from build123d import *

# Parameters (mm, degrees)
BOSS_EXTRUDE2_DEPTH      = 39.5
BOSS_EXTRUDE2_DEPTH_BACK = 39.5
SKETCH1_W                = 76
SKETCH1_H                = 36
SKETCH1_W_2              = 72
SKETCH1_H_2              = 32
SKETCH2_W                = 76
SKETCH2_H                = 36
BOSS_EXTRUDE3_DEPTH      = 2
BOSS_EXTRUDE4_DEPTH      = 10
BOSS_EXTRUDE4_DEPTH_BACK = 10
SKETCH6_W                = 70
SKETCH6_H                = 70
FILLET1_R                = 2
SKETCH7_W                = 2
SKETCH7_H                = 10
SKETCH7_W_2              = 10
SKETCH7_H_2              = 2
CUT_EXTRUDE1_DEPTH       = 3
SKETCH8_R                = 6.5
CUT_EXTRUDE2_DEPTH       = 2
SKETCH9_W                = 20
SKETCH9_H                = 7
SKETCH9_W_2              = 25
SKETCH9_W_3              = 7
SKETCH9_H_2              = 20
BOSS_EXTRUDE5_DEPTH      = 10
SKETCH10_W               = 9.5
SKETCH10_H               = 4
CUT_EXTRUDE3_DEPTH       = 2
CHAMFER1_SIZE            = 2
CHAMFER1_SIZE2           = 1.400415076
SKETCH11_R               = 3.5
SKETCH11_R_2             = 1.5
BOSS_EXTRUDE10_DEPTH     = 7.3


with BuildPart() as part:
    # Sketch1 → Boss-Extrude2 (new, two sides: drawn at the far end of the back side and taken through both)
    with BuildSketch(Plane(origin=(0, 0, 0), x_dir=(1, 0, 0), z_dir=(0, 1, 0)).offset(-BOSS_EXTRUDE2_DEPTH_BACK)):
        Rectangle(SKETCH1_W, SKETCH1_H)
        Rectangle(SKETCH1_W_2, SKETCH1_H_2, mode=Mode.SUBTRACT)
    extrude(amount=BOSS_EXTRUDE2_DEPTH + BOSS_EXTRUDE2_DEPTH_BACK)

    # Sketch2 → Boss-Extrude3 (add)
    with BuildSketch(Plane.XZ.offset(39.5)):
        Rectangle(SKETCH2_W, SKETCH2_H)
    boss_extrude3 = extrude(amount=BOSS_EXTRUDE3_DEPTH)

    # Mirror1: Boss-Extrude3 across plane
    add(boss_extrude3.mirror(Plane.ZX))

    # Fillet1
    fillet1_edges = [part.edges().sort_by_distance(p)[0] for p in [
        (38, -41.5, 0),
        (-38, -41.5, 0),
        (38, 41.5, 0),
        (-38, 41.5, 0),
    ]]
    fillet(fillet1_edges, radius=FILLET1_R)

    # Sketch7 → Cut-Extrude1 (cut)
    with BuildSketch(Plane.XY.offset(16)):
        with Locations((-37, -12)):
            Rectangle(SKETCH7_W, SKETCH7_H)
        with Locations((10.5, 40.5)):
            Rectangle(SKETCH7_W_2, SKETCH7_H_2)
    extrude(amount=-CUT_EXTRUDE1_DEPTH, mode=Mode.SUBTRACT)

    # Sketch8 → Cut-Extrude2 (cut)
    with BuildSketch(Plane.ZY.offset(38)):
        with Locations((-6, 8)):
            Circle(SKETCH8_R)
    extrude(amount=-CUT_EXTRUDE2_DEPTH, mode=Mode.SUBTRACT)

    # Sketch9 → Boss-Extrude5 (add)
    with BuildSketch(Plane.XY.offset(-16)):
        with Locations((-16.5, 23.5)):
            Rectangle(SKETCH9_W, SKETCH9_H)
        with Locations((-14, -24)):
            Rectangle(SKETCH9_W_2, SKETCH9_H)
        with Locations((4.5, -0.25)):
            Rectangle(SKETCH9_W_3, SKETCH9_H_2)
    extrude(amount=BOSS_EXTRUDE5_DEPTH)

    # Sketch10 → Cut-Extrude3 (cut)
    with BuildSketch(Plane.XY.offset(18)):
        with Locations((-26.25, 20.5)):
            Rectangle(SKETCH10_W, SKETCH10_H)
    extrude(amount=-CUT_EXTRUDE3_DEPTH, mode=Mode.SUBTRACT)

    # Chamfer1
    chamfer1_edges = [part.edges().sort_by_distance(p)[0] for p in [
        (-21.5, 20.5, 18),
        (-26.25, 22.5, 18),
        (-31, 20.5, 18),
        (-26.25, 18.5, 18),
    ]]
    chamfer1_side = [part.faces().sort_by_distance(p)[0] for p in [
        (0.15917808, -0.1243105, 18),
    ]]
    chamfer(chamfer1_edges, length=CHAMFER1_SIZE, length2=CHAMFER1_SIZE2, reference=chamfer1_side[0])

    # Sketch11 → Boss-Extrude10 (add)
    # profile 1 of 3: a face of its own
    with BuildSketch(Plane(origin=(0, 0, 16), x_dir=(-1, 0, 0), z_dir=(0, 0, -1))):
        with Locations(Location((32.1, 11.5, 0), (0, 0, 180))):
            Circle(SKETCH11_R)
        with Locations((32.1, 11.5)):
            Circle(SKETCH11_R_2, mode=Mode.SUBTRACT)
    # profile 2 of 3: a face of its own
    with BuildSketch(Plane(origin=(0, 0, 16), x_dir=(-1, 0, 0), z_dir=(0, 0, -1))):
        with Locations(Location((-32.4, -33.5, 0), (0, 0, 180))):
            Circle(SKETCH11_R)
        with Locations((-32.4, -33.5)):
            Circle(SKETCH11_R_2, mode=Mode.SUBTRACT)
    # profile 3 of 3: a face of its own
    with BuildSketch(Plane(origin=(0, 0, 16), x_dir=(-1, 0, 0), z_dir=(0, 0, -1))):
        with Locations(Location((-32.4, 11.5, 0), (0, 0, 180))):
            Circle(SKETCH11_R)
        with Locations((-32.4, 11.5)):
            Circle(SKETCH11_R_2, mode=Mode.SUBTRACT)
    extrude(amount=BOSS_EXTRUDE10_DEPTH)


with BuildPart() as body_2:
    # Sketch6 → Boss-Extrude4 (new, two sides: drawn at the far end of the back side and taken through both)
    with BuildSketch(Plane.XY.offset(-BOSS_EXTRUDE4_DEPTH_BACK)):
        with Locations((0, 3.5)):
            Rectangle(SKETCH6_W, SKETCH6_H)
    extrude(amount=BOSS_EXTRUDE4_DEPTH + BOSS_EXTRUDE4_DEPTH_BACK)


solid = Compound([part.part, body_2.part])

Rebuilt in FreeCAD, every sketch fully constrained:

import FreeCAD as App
import Part
import Sketcher
Q = App.Units.Quantity


def edges_at(feature, points):
    """Names of the edges that pass closest to the given points."""
    edges = feature.Shape.Edges
    near = lambda p: min(range(len(edges)), key=lambda i: edges[i].distToShape(Part.Vertex(*p))[0])
    return sorted({f"Edge{near(p) + 1}" for p in points})

doc = App.newDocument("Part")
body = doc.addObject("PartDesign::Body", "Body")

# Sketch on XZ plane
sketch1 = body.newObject("Sketcher::SketchObject", "Sketch")
sketch1.AttachmentSupport = (doc.getObject("XZ_Plane"), [""])
sketch1.MapMode = "FlatFace"
sketch1.addGeometry(Part.LineSegment(App.Vector(-38, -18, 0), App.Vector(-38, 18, 0)), False)
sketch1.addGeometry(Part.LineSegment(App.Vector(-38, 18, 0), App.Vector(38, 18, 0)), False)
sketch1.addGeometry(Part.LineSegment(App.Vector(38, 18, 0), App.Vector(38, -18, 0)), False)
sketch1.addGeometry(Part.LineSegment(App.Vector(38, -18, 0), App.Vector(-38, -18, 0)), False)
sketch1.addGeometry(Part.LineSegment(App.Vector(36, 16, 0), App.Vector(-36, 16, 0)), False)
sketch1.addGeometry(Part.LineSegment(App.Vector(-36, 16, 0), App.Vector(-36, -16, 0)), False)
sketch1.addGeometry(Part.LineSegment(App.Vector(-36, -16, 0), App.Vector(36, -16, 0)), False)
sketch1.addGeometry(Part.LineSegment(App.Vector(36, -16, 0), App.Vector(36, 16, 0)), False)
sketch1.addConstraint(Sketcher.Constraint("Coincident", 0, 2, 1, 1))
sketch1.addConstraint(Sketcher.Constraint("Coincident", 1, 2, 2, 1))
sketch1.addConstraint(Sketcher.Constraint("Coincident", 2, 2, 3, 1))
sketch1.addConstraint(Sketcher.Constraint("Coincident", 3, 2, 0, 1))
sketch1.addConstraint(Sketcher.Constraint("Coincident", 4, 2, 5, 1))
sketch1.addConstraint(Sketcher.Constraint("Coincident", 5, 2, 6, 1))
sketch1.addConstraint(Sketcher.Constraint("Coincident", 6, 2, 7, 1))
sketch1.addConstraint(Sketcher.Constraint("Coincident", 7, 2, 4, 1))
sketch1.addConstraint(Sketcher.Constraint("Vertical", 0))
sketch1.addConstraint(Sketcher.Constraint("Horizontal", 1))
sketch1.addConstraint(Sketcher.Constraint("Vertical", 2))
sketch1.addConstraint(Sketcher.Constraint("Horizontal", 3))
sketch1.addConstraint(Sketcher.Constraint("Horizontal", 4))
sketch1.addConstraint(Sketcher.Constraint("Vertical", 5))
sketch1.addConstraint(Sketcher.Constraint("Horizontal", 6))
sketch1.addConstraint(Sketcher.Constraint("Vertical", 7))
sketch1.addConstraint(Sketcher.Constraint("Symmetric", 0, 2, 2, 2, -1, 1))
sketch1.addConstraint(Sketcher.Constraint("Symmetric", 4, 2, 6, 2, -1, 1))
sketch1.addConstraint(Sketcher.Constraint("DistanceX", 1, 1, 1, 2, Q("76 mm")))
sketch1.addConstraint(Sketcher.Constraint("DistanceX", 4, 2, 4, 1, Q("72 mm")))
sketch1.addConstraint(Sketcher.Constraint("DistanceY", 0, 1, 0, 2, Q("36 mm")))
sketch1.addConstraint(Sketcher.Constraint("DistanceY", 5, 2, 5, 1, Q("32 mm")))
pad1 = body.newObject("PartDesign::Pad", "Pad")
pad1.Profile = sketch1
pad1.Type = "TwoLengths"
pad1.Length = 39.5
pad1.Length2 = 39.5
pad1.Reversed = True

# Sketch on XZ plane
sketch2 = body.newObject("Sketcher::SketchObject", "Sketch001")
sketch2.AttachmentSupport = (doc.getObject("XZ_Plane"), [""])
sketch2.MapMode = "FlatFace"
sketch2.AttachmentOffset = App.Placement(App.Vector(0, 0, 39.5), App.Rotation())
sketch2.addGeometry(Part.LineSegment(App.Vector(-38, 18, 0), App.Vector(-38, -18, 0)), False)
sketch2.addGeometry(Part.LineSegment(App.Vector(-38, -18, 0), App.Vector(38, -18, 0)), False)
sketch2.addGeometry(Part.LineSegment(App.Vector(38, -18, 0), App.Vector(38, 18, 0)), False)
sketch2.addGeometry(Part.LineSegment(App.Vector(38, 18, 0), App.Vector(-38, 18, 0)), False)
sketch2.addConstraint(Sketcher.Constraint("Coincident", 0, 2, 1, 1))
sketch2.addConstraint(Sketcher.Constraint("Coincident", 1, 2, 2, 1))
sketch2.addConstraint(Sketcher.Constraint("Coincident", 2, 2, 3, 1))
sketch2.addConstraint(Sketcher.Constraint("Coincident", 3, 2, 0, 1))
sketch2.addConstraint(Sketcher.Constraint("Vertical", 0))
sketch2.addConstraint(Sketcher.Constraint("Horizontal", 1))
sketch2.addConstraint(Sketcher.Constraint("Vertical", 2))
sketch2.addConstraint(Sketcher.Constraint("Horizontal", 3))
sketch2.addConstraint(Sketcher.Constraint("Symmetric", 0, 2, 2, 2, -1, 1))
sketch2.addConstraint(Sketcher.Constraint("DistanceX", 1, 1, 1, 2, Q("76 mm")))
sketch2.addConstraint(Sketcher.Constraint("DistanceY", 0, 2, 0, 1, Q("36 mm")))
pad2 = body.newObject("PartDesign::Pad", "Pad001")
pad2.Profile = sketch2
pad2.Length = 2
doc.recompute()

mirrored = body.newObject("PartDesign::Mirrored", "Mirrored")
mirrored.Originals = [pad2]
mirrored.MirrorPlane = (doc.getObject("XZ_Plane"), [""])
body.Tip = mirrored
doc.recompute()

fillet = body.newObject("PartDesign::Fillet", "Fillet")
fillet.Base = (mirrored, edges_at(mirrored, [
    (38, -41.5, 0),
    (-38, -41.5, 0),
    (38, 41.5, 0),
    (-38, 41.5, 0),
]))
fillet.Radius = 2

# Sketch on XY plane
sketch3 = body.newObject("Sketcher::SketchObject", "Sketch002")
sketch3.AttachmentSupport = (doc.getObject("XY_Plane"), [""])
sketch3.MapMode = "FlatFace"
sketch3.AttachmentOffset = App.Placement(App.Vector(0, 0, 16), App.Rotation())
sketch3.addGeometry(Part.LineSegment(App.Vector(-38, -7, 0), App.Vector(-38, -17, 0)), False)
sketch3.addGeometry(Part.LineSegment(App.Vector(-38, -17, 0), App.Vector(-36, -17, 0)), False)
sketch3.addGeometry(Part.LineSegment(App.Vector(-36, -17, 0), App.Vector(-36, -7, 0)), False)
sketch3.addGeometry(Part.LineSegment(App.Vector(-36, -7, 0), App.Vector(-38, -7, 0)), False)
sketch3.addGeometry(Part.LineSegment(App.Vector(5.5, 41.5, 0), App.Vector(5.5, 39.5, 0)), False)
sketch3.addGeometry(Part.LineSegment(App.Vector(5.5, 39.5, 0), App.Vector(15.5, 39.5, 0)), False)
sketch3.addGeometry(Part.LineSegment(App.Vector(15.5, 39.5, 0), App.Vector(15.5, 41.5, 0)), False)
sketch3.addGeometry(Part.LineSegment(App.Vector(15.5, 41.5, 0), App.Vector(5.5, 41.5, 0)), False)
sketch3.addConstraint(Sketcher.Constraint("Coincident", 0, 2, 1, 1))
sketch3.addConstraint(Sketcher.Constraint("Coincident", 1, 2, 2, 1))
sketch3.addConstraint(Sketcher.Constraint("Coincident", 2, 2, 3, 1))
sketch3.addConstraint(Sketcher.Constraint("Coincident", 3, 2, 0, 1))
sketch3.addConstraint(Sketcher.Constraint("Coincident", 4, 2, 5, 1))
sketch3.addConstraint(Sketcher.Constraint("Coincident", 5, 2, 6, 1))
sketch3.addConstraint(Sketcher.Constraint("Coincident", 6, 2, 7, 1))
sketch3.addConstraint(Sketcher.Constraint("Coincident", 7, 2, 4, 1))
sketch3.addConstraint(Sketcher.Constraint("Vertical", 0))
sketch3.addConstraint(Sketcher.Constraint("Horizontal", 1))
sketch3.addConstraint(Sketcher.Constraint("Vertical", 2))
sketch3.addConstraint(Sketcher.Constraint("Horizontal", 3))
sketch3.addConstraint(Sketcher.Constraint("Vertical", 4))
sketch3.addConstraint(Sketcher.Constraint("Horizontal", 5))
sketch3.addConstraint(Sketcher.Constraint("Vertical", 6))
sketch3.addConstraint(Sketcher.Constraint("Horizontal", 7))
sketch3.addConstraint(Sketcher.Constraint("Equal", 7, 0))
sketch3.addConstraint(Sketcher.Constraint("Equal", 3, 4))
sketch3.addConstraint(Sketcher.Constraint("DistanceX", 1, 1, 1, 2, Q("2 mm")))
sketch3.addConstraint(Sketcher.Constraint("DistanceX", 5, 1, 5, 2, Q("10 mm")))
sketch3.addConstraint(Sketcher.Constraint("DistanceX", 0, 2, -1, 1, Q("38 mm")))
sketch3.addConstraint(Sketcher.Constraint("DistanceY", 0, 2, -1, 1, Q("17 mm")))
sketch3.addConstraint(Sketcher.Constraint("DistanceX", -1, 1, 4, 2, Q("5.5 mm")))
sketch3.addConstraint(Sketcher.Constraint("DistanceY", -1, 1, 4, 2, Q("39.5 mm")))
pocket1 = body.newObject("PartDesign::Pocket", "Pocket")
pocket1.Profile = sketch3
pocket1.Length = 3

# Sketch on YZ plane
sketch4 = body.newObject("Sketcher::SketchObject", "Sketch003")
sketch4.AttachmentSupport = (doc.getObject("YZ_Plane"), [""])
sketch4.MapMode = "FlatFace"
sketch4.AttachmentOffset = App.Placement(App.Vector(0, 0, -38), App.Rotation())
sketch4.addGeometry(Part.Circle(App.Vector(8, -6, 0), App.Vector(0, 0, 1), 6), False)
sketch4.addConstraint(Sketcher.Constraint("Diameter", 0, Q("13 mm")))
sketch4.addConstraint(Sketcher.Constraint("DistanceX", -1, 1, 0, 3, Q("8 mm")))
sketch4.addConstraint(Sketcher.Constraint("DistanceY", 0, 3, -1, 1, Q("6 mm")))
pocket2 = body.newObject("PartDesign::Pocket", "Pocket001")
pocket2.Profile = sketch4
pocket2.Length = 2
pocket2.Reversed = True

# Sketch on XY plane
sketch5 = body.newObject("Sketcher::SketchObject", "Sketch004")
sketch5.AttachmentSupport = (doc.getObject("XY_Plane"), [""])
sketch5.MapMode = "FlatFace"
sketch5.AttachmentOffset = App.Placement(App.Vector(0, 0, -16), App.Rotation())
sketch5.addGeometry(Part.LineSegment(App.Vector(-26, 27, 0), App.Vector(-26, 20, 0)), False)
sketch5.addGeometry(Part.LineSegment(App.Vector(-26, 20, 0), App.Vector(-6, 20, 0)), False)
sketch5.addGeometry(Part.LineSegment(App.Vector(-6, 20, 0), App.Vector(-6, 27, 0)), False)
sketch5.addGeometry(Part.LineSegment(App.Vector(-6, 27, 0), App.Vector(-26, 27, 0)), False)
sketch5.addGeometry(Part.LineSegment(App.Vector(-26, -20, 0), App.Vector(-26, -28, 0)), False)
sketch5.addGeometry(Part.LineSegment(App.Vector(-26, -28, 0), App.Vector(-2, -28, 0)), False)
sketch5.addGeometry(Part.LineSegment(App.Vector(-2, -28, 0), App.Vector(-2, -20, 0)), False)
sketch5.addGeometry(Part.LineSegment(App.Vector(-2, -20, 0), App.Vector(-26, -20, 0)), False)
sketch5.addGeometry(Part.LineSegment(App.Vector(1, 10, 0), App.Vector(1, -10, 0)), False)
sketch5.addGeometry(Part.LineSegment(App.Vector(1, -10, 0), App.Vector(8, -10, 0)), False)
sketch5.addGeometry(Part.LineSegment(App.Vector(8, -10, 0), App.Vector(8, 10, 0)), False)
sketch5.addGeometry(Part.LineSegment(App.Vector(8, 10, 0), App.Vector(1, 10, 0)), False)
sketch5.addConstraint(Sketcher.Constraint("Coincident", 0, 2, 1, 1))
sketch5.addConstraint(Sketcher.Constraint("Coincident", 1, 2, 2, 1))
sketch5.addConstraint(Sketcher.Constraint("Coincident", 2, 2, 3, 1))
sketch5.addConstraint(Sketcher.Constraint("Coincident", 3, 2, 0, 1))
sketch5.addConstraint(Sketcher.Constraint("Coincident", 4, 2, 5, 1))
sketch5.addConstraint(Sketcher.Constraint("Coincident", 5, 2, 6, 1))
sketch5.addConstraint(Sketcher.Constraint("Coincident", 6, 2, 7, 1))
sketch5.addConstraint(Sketcher.Constraint("Coincident", 7, 2, 4, 1))
sketch5.addConstraint(Sketcher.Constraint("Coincident", 8, 2, 9, 1))
sketch5.addConstraint(Sketcher.Constraint("Coincident", 9, 2, 10, 1))
sketch5.addConstraint(Sketcher.Constraint("Coincident", 10, 2, 11, 1))
sketch5.addConstraint(Sketcher.Constraint("Coincident", 11, 2, 8, 1))
sketch5.addConstraint(Sketcher.Constraint("Vertical", 0))
sketch5.addConstraint(Sketcher.Constraint("Horizontal", 1))
sketch5.addConstraint(Sketcher.Constraint("Vertical", 2))
sketch5.addConstraint(Sketcher.Constraint("Horizontal", 3))
sketch5.addConstraint(Sketcher.Constraint("Vertical", 4))
sketch5.addConstraint(Sketcher.Constraint("Horizontal", 5))
sketch5.addConstraint(Sketcher.Constraint("Vertical", 6))
sketch5.addConstraint(Sketcher.Constraint("Horizontal", 7))
sketch5.addConstraint(Sketcher.Constraint("Vertical", 8))
sketch5.addConstraint(Sketcher.Constraint("Horizontal", 9))
sketch5.addConstraint(Sketcher.Constraint("Vertical", 10))
sketch5.addConstraint(Sketcher.Constraint("Horizontal", 11))
sketch5.addConstraint(Sketcher.Constraint("Vertical", 3, 2, 4, 2))
sketch5.addConstraint(Sketcher.Constraint("Equal", 11, 0))
sketch5.addConstraint(Sketcher.Constraint("Equal", 2, 4))
sketch5.addConstraint(Sketcher.Constraint("Equal", 3, 8))
sketch5.addConstraint(Sketcher.Constraint("DistanceX", 1, 1, 1, 2, Q("20 mm")))
sketch5.addConstraint(Sketcher.Constraint("DistanceX", 5, 1, 5, 2, Q("25 mm")))
sketch5.addConstraint(Sketcher.Constraint("DistanceX", 9, 1, 9, 2, Q("7 mm")))
sketch5.addConstraint(Sketcher.Constraint("DistanceY", -1, 1, 0, 2, Q("20 mm")))
sketch5.addConstraint(Sketcher.Constraint("DistanceX", -1, 1, 8, 2, Q("1 mm")))
sketch5.addConstraint(Sketcher.Constraint("DistanceX", 0, 2, -1, 1, Q("26.5 mm")))
sketch5.addConstraint(Sketcher.Constraint("DistanceY", 4, 2, -1, 1, Q("27.5 mm")))
sketch5.addConstraint(Sketcher.Constraint("DistanceY", 8, 2, -1, 1, Q("10.25 mm")))
pad3 = body.newObject("PartDesign::Pad", "Pad002")
pad3.Profile = sketch5
pad3.Length = 10

# Sketch on XY plane
sketch6 = body.newObject("Sketcher::SketchObject", "Sketch005")
sketch6.AttachmentSupport = (doc.getObject("XY_Plane"), [""])
sketch6.MapMode = "FlatFace"
sketch6.AttachmentOffset = App.Placement(App.Vector(0, 0, 18), App.Rotation())
sketch6.addGeometry(Part.LineSegment(App.Vector(-31, 22.5, 0), App.Vector(-31, 18.5, 0)), False)
sketch6.addGeometry(Part.LineSegment(App.Vector(-31, 18.5, 0), App.Vector(-21.5, 18.5, 0)), False)
sketch6.addGeometry(Part.LineSegment(App.Vector(-21.5, 18.5, 0), App.Vector(-21.5, 22.5, 0)), False)
sketch6.addGeometry(Part.LineSegment(App.Vector(-21.5, 22.5, 0), App.Vector(-31, 22.5, 0)), False)
sketch6.addConstraint(Sketcher.Constraint("Coincident", 0, 2, 1, 1))
sketch6.addConstraint(Sketcher.Constraint("Coincident", 1, 2, 2, 1))
sketch6.addConstraint(Sketcher.Constraint("Coincident", 2, 2, 3, 1))
sketch6.addConstraint(Sketcher.Constraint("Coincident", 3, 2, 0, 1))
sketch6.addConstraint(Sketcher.Constraint("Vertical", 0))
sketch6.addConstraint(Sketcher.Constraint("Horizontal", 1))
sketch6.addConstraint(Sketcher.Constraint("Vertical", 2))
sketch6.addConstraint(Sketcher.Constraint("Horizontal", 3))
sketch6.addConstraint(Sketcher.Constraint("DistanceY", 0, 2, 0, 1, Q("4 mm")))
sketch6.addConstraint(Sketcher.Constraint("DistanceX", 1, 1, 1, 2, Q("9.5 mm")))
sketch6.addConstraint(Sketcher.Constraint("DistanceX", 0, 2, -1, 1, Q("31 mm")))
sketch6.addConstraint(Sketcher.Constraint("DistanceY", -1, 1, 0, 2, Q("18.5 mm")))
pocket3 = body.newObject("PartDesign::Pocket", "Pocket002")
pocket3.Profile = sketch6
pocket3.Length = 2
doc.recompute()

chamfer = body.newObject("PartDesign::Chamfer", "Chamfer")
chamfer.Base = (pocket3, edges_at(pocket3, [
    (-21.5, 20.5, 18),
    (-26.25, 22.5, 18),
    (-31, 20.5, 18),
    (-26.25, 18.5, 18),
]))
chamfer.ChamferType = "Two distances"
chamfer.Size = 2
chamfer.Size2 = 1.400415

# Sketch on XY plane
sketch7 = body.newObject("Sketcher::SketchObject", "Sketch006")
sketch7.AttachmentSupport = (doc.getObject("XY_Plane"), [""])
sketch7.MapMode = "FlatFace"
sketch7.AttachmentOffset = App.Placement(App.Vector(0, 0, 16), App.Rotation())
sketch7.addGeometry(Part.Circle(App.Vector(-32.1, 11.5, 0), App.Vector(0, 0, 1), 3.5), False)
sketch7.addGeometry(Part.Circle(App.Vector(-32.1, 11.5, 0), App.Vector(0, 0, 1), 1.5), False)
sketch7.addGeometry(Part.Circle(App.Vector(32.4, -33.5, 0), App.Vector(0, 0, 1), 3.5), False)
sketch7.addGeometry(Part.Circle(App.Vector(32.4, -33.5, 0), App.Vector(0, 0, 1), 1.5), False)
sketch7.addGeometry(Part.Circle(App.Vector(32.4, 11.5, 0), App.Vector(0, 0, 1), 3.5), False)
sketch7.addGeometry(Part.Circle(App.Vector(32.4, 11.5, 0), App.Vector(0, 0, 1), 1.5), False)
sketch7.addConstraint(Sketcher.Constraint("Coincident", 1, 3, 0, 3))
sketch7.addConstraint(Sketcher.Constraint("Coincident", 3, 3, 2, 3))
sketch7.addConstraint(Sketcher.Constraint("Coincident", 5, 3, 4, 3))
sketch7.addConstraint(Sketcher.Constraint("Equal", 0, 2))
sketch7.addConstraint(Sketcher.Constraint("Equal", 1, 3))
sketch7.addConstraint(Sketcher.Constraint("Equal", 2, 4))
sketch7.addConstraint(Sketcher.Constraint("Equal", 3, 5))
sketch7.addConstraint(Sketcher.Constraint("Horizontal", 1, 3, 4, 3))
sketch7.addConstraint(Sketcher.Constraint("Vertical", 3, 3, 4, 3))
sketch7.addConstraint(Sketcher.Constraint("Diameter", 0, Q("7 mm")))
sketch7.addConstraint(Sketcher.Constraint("Diameter", 1, Q("3 mm")))
sketch7.addConstraint(Sketcher.Constraint("DistanceY", 2, 3, 0, 3, Q("45 mm")))
sketch7.addConstraint(Sketcher.Constraint("DistanceX", 0, 3, -1, 1, Q("32.1 mm")))
sketch7.addConstraint(Sketcher.Constraint("DistanceY", -1, 1, 0, 3, Q("11.5 mm")))
sketch7.addConstraint(Sketcher.Constraint("DistanceX", -1, 1, 2, 3, Q("32.4 mm")))
pad4 = body.newObject("PartDesign::Pad", "Pad003")
pad4.Profile = sketch7
pad4.Length = 7.3
pad4.Reversed = True
body2 = doc.addObject("PartDesign::Body", "Body001")

# Sketch on XY plane
sketch8 = body2.newObject("Sketcher::SketchObject", "Sketch007")
sketch8.AttachmentSupport = (doc.getObject("XY_Plane001"), [""])
sketch8.MapMode = "FlatFace"
sketch8.addGeometry(Part.LineSegment(App.Vector(-35, 38, 0), App.Vector(-35, -32, 0)), False)
sketch8.addGeometry(Part.LineSegment(App.Vector(-35, -32, 0), App.Vector(35, -32, 0)), False)
sketch8.addGeometry(Part.LineSegment(App.Vector(35, -32, 0), App.Vector(35, 38, 0)), False)
sketch8.addGeometry(Part.LineSegment(App.Vector(35, 38, 0), App.Vector(-35, 38, 0)), False)
sketch8.addConstraint(Sketcher.Constraint("Coincident", 0, 2, 1, 1))
sketch8.addConstraint(Sketcher.Constraint("Coincident", 1, 2, 2, 1))
sketch8.addConstraint(Sketcher.Constraint("Coincident", 2, 2, 3, 1))
sketch8.addConstraint(Sketcher.Constraint("Coincident", 3, 2, 0, 1))
sketch8.addConstraint(Sketcher.Constraint("Vertical", 0))
sketch8.addConstraint(Sketcher.Constraint("Horizontal", 1))
sketch8.addConstraint(Sketcher.Constraint("Vertical", 2))
sketch8.addConstraint(Sketcher.Constraint("Horizontal", 3))
sketch8.addConstraint(Sketcher.Constraint("Equal", 3, 0))
sketch8.addConstraint(Sketcher.Constraint("DistanceX", 1, 1, 1, 2, Q("70 mm")))
sketch8.addConstraint(Sketcher.Constraint("DistanceX", 0, 2, -1, 1, Q("35 mm")))
sketch8.addConstraint(Sketcher.Constraint("DistanceY", 0, 2, -1, 1, Q("31.5 mm")))
pad5 = body2.newObject("PartDesign::Pad", "Pad004")
pad5.Profile = sketch8
pad5.Type = "TwoLengths"
pad5.Length = 10
pad5.Length2 = 10

doc.recompute()
